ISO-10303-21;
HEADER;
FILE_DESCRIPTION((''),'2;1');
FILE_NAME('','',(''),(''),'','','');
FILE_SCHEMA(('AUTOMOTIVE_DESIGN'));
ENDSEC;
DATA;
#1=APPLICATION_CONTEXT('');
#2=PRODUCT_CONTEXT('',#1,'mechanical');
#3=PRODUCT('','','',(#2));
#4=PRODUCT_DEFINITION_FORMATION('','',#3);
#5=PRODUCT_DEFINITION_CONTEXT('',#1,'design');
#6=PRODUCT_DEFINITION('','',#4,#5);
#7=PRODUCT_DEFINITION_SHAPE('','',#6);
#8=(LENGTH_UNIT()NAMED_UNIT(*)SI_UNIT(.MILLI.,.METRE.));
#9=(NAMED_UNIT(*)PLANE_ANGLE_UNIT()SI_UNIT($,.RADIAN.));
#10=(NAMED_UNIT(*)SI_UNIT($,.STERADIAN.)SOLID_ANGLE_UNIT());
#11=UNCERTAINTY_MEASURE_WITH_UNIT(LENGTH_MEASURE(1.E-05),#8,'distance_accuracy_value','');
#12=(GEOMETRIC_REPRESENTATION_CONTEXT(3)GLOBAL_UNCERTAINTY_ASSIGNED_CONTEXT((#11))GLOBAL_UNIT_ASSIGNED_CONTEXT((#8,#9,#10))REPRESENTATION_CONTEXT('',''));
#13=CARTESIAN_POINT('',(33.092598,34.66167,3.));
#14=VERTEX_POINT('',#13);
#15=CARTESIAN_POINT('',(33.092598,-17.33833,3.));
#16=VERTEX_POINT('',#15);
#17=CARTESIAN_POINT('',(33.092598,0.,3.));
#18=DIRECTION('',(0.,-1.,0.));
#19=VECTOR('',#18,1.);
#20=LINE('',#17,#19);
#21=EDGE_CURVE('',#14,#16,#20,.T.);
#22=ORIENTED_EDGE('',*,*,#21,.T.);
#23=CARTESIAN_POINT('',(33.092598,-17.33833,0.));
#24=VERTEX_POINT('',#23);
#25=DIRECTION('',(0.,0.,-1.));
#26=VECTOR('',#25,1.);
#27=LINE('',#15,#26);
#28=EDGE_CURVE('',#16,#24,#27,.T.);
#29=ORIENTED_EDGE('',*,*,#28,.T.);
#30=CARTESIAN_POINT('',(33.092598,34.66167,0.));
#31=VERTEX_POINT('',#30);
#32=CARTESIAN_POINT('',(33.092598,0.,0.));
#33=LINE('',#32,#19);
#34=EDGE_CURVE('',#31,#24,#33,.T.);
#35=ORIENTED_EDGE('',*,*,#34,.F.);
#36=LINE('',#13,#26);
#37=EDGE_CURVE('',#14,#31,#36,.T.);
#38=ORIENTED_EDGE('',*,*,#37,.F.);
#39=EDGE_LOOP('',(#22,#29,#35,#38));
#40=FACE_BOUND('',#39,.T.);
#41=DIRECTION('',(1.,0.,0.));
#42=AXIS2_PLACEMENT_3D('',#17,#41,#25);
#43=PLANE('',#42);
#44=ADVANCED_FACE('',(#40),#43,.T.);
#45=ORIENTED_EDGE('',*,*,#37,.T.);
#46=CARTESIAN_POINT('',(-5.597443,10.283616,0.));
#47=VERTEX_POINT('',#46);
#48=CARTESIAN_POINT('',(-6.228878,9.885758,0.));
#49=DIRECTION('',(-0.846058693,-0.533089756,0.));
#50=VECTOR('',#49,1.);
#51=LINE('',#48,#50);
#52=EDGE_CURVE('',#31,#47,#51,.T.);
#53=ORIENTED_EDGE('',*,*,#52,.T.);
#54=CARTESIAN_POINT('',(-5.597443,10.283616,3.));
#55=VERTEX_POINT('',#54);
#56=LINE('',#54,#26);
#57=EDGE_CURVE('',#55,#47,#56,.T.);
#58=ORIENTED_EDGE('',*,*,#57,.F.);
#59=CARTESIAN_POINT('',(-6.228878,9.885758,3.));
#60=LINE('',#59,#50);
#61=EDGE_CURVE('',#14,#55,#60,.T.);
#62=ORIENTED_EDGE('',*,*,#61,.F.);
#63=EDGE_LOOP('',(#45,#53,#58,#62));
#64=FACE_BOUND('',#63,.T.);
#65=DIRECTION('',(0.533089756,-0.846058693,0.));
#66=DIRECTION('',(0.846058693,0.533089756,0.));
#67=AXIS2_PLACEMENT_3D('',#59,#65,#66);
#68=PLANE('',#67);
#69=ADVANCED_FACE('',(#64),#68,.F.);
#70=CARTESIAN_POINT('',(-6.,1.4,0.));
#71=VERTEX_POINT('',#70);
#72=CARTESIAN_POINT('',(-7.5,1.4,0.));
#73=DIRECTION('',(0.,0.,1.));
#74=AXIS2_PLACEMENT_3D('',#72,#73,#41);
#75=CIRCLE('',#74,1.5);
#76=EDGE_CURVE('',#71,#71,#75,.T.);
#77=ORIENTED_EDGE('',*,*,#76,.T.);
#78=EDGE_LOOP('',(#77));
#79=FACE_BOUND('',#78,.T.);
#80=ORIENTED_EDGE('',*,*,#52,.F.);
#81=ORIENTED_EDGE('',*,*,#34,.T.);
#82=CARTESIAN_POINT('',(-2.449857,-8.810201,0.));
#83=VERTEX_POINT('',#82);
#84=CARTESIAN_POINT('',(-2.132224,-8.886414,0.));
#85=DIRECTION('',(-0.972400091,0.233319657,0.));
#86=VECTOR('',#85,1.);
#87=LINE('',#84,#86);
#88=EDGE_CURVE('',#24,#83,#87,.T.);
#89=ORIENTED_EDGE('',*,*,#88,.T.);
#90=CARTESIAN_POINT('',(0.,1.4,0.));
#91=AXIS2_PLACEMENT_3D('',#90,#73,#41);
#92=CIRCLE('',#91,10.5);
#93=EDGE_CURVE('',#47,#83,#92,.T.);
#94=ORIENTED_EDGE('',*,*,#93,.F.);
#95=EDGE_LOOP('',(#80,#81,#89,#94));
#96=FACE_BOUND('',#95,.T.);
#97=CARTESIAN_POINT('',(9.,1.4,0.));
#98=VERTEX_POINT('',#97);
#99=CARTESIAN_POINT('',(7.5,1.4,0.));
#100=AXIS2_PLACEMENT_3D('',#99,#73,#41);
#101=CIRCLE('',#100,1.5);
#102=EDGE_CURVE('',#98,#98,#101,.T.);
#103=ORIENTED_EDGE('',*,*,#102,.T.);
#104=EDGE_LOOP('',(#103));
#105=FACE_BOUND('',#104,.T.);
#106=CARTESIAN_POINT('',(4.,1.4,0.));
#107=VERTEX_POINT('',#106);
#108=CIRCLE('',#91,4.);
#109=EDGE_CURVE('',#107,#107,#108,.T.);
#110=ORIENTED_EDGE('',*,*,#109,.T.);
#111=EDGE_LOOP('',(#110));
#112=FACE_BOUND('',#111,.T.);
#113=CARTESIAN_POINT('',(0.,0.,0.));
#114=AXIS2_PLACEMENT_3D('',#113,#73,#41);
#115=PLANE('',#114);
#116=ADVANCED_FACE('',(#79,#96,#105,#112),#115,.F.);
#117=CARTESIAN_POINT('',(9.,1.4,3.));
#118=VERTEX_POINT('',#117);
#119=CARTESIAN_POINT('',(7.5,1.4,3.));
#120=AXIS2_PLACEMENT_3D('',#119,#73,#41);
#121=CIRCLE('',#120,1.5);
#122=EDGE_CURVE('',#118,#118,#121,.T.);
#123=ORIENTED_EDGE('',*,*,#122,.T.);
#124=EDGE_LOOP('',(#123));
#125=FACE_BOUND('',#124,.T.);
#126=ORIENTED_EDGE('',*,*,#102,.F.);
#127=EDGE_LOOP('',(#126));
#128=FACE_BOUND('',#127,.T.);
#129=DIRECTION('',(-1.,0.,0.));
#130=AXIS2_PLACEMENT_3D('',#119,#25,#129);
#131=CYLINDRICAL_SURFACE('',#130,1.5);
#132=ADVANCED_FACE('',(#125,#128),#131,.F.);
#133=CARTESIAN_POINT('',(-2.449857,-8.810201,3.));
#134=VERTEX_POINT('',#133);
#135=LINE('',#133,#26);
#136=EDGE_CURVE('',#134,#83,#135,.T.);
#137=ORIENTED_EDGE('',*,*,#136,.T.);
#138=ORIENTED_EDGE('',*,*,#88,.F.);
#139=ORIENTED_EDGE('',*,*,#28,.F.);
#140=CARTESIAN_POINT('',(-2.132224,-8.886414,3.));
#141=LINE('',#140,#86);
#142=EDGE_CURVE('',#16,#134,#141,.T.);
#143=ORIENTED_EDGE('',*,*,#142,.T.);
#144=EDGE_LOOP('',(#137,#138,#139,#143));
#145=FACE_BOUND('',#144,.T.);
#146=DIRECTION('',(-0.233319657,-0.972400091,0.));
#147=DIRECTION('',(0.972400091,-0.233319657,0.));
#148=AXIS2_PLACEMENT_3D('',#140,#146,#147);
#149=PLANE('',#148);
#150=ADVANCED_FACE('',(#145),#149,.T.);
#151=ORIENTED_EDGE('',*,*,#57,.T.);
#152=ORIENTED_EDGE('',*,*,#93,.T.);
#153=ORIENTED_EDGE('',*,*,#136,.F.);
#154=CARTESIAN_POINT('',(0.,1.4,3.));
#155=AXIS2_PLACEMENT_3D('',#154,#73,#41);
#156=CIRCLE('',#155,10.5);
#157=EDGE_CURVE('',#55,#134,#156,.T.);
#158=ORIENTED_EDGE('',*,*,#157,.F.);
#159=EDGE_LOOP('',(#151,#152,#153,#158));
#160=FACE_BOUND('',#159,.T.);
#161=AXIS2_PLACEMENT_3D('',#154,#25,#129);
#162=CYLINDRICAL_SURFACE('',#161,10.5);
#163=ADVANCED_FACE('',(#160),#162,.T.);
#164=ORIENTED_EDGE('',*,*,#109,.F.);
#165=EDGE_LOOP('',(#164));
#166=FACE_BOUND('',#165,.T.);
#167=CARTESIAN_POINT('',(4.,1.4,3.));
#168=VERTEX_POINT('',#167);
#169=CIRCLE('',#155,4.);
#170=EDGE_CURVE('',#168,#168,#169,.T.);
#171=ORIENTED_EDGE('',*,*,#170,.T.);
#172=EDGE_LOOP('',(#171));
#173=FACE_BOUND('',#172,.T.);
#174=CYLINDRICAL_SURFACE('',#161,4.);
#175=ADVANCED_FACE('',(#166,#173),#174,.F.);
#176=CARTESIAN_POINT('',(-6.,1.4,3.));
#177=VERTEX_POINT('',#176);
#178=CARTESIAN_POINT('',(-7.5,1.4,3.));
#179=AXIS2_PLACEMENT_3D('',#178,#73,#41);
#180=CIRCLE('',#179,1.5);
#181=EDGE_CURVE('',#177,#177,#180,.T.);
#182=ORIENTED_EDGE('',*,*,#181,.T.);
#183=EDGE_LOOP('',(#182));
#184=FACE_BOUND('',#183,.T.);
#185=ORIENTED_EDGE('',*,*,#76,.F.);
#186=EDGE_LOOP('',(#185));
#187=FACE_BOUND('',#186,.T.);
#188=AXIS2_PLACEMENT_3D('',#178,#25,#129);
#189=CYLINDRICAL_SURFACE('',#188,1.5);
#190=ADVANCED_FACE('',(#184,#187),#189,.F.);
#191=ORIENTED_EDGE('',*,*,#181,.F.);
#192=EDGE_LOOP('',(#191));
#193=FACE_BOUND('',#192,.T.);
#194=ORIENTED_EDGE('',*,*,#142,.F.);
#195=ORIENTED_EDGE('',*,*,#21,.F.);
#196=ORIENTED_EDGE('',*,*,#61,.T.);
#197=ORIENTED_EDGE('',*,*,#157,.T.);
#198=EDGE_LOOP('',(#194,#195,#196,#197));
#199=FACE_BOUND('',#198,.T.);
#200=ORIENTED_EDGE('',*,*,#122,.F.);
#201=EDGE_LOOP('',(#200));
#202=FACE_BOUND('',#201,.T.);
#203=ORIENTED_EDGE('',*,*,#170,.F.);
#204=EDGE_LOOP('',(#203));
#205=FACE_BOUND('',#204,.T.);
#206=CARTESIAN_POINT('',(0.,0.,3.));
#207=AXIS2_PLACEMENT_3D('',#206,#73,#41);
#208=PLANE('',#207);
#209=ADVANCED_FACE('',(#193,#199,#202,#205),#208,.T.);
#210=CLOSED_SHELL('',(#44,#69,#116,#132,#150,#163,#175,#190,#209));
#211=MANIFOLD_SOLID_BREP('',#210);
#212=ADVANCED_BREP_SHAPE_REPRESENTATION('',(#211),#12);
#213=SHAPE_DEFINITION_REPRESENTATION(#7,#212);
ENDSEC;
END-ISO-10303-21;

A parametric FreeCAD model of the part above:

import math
import FreeCAD as App
import Part
import Sketcher

V = App.Vector
Q = App.Units.Quantity

doc = App.newDocument("Part")
params = doc.addObject("Spreadsheet::Sheet", "Params")
for row, (alias, value) in enumerate([
    ("sketch1_diameter", "3 mm"),
    ("sketch1_diameter2", "8.000001 mm"),
    ("sketch1_radius", "10.5 mm"),
    ("sketch1_height", "52 mm"),
    ("pad1_length", "3 mm"),
], start=1):
    params.set(f"A{row}", alias)
    params.set(f"B{row}", "=" + value)
    params.setAlias(f"B{row}", alias)

body = doc.addObject("PartDesign::Body", "Body")

# Sketch on XY plane
sketch1 = body.newObject("Sketcher::SketchObject", "Sketch")
sketch1.AttachmentSupport = (doc.getObject("XY_Plane"), [""])
sketch1.MapMode = "FlatFace"
sketch1.addGeometry([
    Part.LineSegment(V(33.1, -17.3, 0), V(33.1, 34.7, 0)),  # 0
    Part.LineSegment(V(33.1, 34.7, 0), V(-5.6, 10.3, 0)),  # 1
    Part.ArcOfCircle(Part.Circle(V(0, 1.4, 0), V(0, 0, 1), 10.5), math.radians(122), math.radians(257)),  # 2
    Part.LineSegment(V(-2.4, -8.8, 0), V(33.1, -17.3, 0)),  # 3
    Part.Circle(V(7.5, 1.4, 0), V(0, 0, 1), 1.5),  # 4
    Part.Circle(V(0, 1.4, 0), V(0, 0, 1), 4),  # 5
    Part.Circle(V(-7.5, 1.4, 0), V(0, 0, 1), 1.5),  # 6
], False)
sketch1.addConstraint([
    Sketcher.Constraint("Coincident", 0, 2, 1, 1),
    Sketcher.Constraint("Tangent", 1, 2, 2, 1),
    Sketcher.Constraint("Tangent", 2, 2, 3, 1),
    Sketcher.Constraint("Coincident", 3, 2, 0, 1),
    Sketcher.Constraint("Vertical", 0),
    Sketcher.Constraint("Coincident", 5, 3, 2, 3),
    Sketcher.Constraint("Equal", 4, 6),
    Sketcher.Constraint("Symmetric", 4, 3, 6, 3, -2),
    Sketcher.Constraint("PointOnObject", 2, 3, -2),
    Sketcher.Constraint("Horizontal", 2, 3, 4, 3),
    Sketcher.Constraint("Diameter", 4, Q("3 mm")),
    Sketcher.Constraint("Diameter", 5, Q("8.000001 mm")),
    Sketcher.Constraint("Radius", 2, Q("10.5 mm")),
    Sketcher.Constraint("DistanceY", 0, 1, 0, 2, Q("52 mm")),
    Sketcher.Constraint("DistanceX", 6, 3, 4, 3, Q("15 mm")),
    Sketcher.Constraint("DistanceY", -1, 1, 2, 3, Q("1.4 mm")),
    Sketcher.Constraint("DistanceX", -1, 1, 0, 2, Q("33.092598 mm")),
    Sketcher.Constraint("DistanceY", 2, 2, -1, 1, Q("8.810201 mm")),
])
sketch1.setExpression("Constraints[10]", "Params.sketch1_diameter")
sketch1.setExpression("Constraints[11]", "Params.sketch1_diameter2")
sketch1.setExpression("Constraints[12]", "Params.sketch1_radius")
sketch1.setExpression("Constraints[13]", "Params.sketch1_height")
pad1 = body.newObject("PartDesign::Pad", "Pad")
pad1.Profile = sketch1
pad1.setExpression("Length", "Params.pad1_length")

doc.recompute()
